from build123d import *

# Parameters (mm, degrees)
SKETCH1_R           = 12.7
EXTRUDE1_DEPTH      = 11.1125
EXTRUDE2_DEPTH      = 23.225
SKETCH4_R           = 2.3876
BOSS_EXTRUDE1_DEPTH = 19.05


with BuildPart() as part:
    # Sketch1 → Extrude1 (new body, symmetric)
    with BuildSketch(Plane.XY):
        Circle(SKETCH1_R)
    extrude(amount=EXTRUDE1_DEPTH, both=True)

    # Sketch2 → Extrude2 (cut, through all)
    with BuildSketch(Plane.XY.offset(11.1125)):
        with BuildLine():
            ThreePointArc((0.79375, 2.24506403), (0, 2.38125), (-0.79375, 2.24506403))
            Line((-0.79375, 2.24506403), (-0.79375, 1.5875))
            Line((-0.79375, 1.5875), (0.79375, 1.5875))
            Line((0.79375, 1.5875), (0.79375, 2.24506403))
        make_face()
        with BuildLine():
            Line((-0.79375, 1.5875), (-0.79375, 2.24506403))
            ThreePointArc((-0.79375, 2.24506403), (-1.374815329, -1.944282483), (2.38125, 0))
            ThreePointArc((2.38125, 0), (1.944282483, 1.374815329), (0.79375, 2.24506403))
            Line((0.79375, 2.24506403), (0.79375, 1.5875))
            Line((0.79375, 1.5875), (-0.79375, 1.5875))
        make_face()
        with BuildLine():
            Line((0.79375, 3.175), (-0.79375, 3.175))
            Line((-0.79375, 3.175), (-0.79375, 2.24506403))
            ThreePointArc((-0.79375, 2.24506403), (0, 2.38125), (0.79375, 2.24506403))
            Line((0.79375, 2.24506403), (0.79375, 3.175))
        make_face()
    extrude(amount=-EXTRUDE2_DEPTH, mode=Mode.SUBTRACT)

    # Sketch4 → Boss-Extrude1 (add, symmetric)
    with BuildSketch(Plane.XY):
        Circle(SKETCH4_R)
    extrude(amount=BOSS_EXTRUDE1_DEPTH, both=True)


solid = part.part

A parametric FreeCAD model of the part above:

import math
import FreeCAD as App
import Part
import Sketcher
Q = App.Units.Quantity

doc = App.newDocument("Part")
body = doc.addObject("PartDesign::Body", "Body")

# Sketch on XY plane
sketch1 = body.newObject("Sketcher::SketchObject", "Sketch")
sketch1.AttachmentSupport = (doc.getObject("XY_Plane"), [""])
sketch1.MapMode = "FlatFace"
sketch1.addGeometry(Part.Circle(App.Vector(0, 0, 0), App.Vector(0, 0, 1), 13), False)
sketch1.addConstraint([
    Sketcher.Constraint("Coincident", 0, 3, -1, 1),
    Sketcher.Constraint("Diameter", 0, Q("1 in")),
])
pad1 = body.newObject("PartDesign::Pad", "Pad")
pad1.Profile = sketch1
pad1.Length = Q("0.875 in")
pad1.Midplane = True

# Sketch on XY plane
sketch2 = body.newObject("Sketcher::SketchObject", "Sketch001")
sketch2.AttachmentSupport = (doc.getObject("XY_Plane"), [""])
sketch2.MapMode = "FlatFace"
sketch2.AttachmentOffset = App.Placement(App.Vector(0, 0, 0.4375 * 25.4), App.Rotation())
sketch2.addGeometry([
    Part.ArcOfCircle(Part.Circle(App.Vector(0, 0, 0), App.Vector(0, 0, 1), 2.4), math.radians(109), math.radians(360)),  # 0
    Part.ArcOfCircle(Part.Circle(App.Vector(0, 0, 0), App.Vector(0, 0, 1), 2.4), math.radians(0), math.radians(71)),  # 1
    Part.LineSegment(App.Vector(0.8, 2.2, 0), App.Vector(0.8, 3.2, 0)),  # 2
    Part.LineSegment(App.Vector(0.8, 3.2, 0), App.Vector(-0.8, 3.2, 0)),  # 3
    Part.LineSegment(App.Vector(-0.8, 3.2, 0), App.Vector(-0.8, 2.2, 0)),  # 4
], False)
sketch2.addConstraint([
    Sketcher.Constraint("Tangent", 0, 2, 1, 1),
    Sketcher.Constraint("Coincident", 1, 2, 2, 1),
    Sketcher.Constraint("Coincident", 2, 2, 3, 1),
    Sketcher.Constraint("Coincident", 3, 2, 4, 1),
    Sketcher.Constraint("Coincident", 4, 2, 0, 1),
    Sketcher.Constraint("Vertical", 2),
    Sketcher.Constraint("Horizontal", 3),
    Sketcher.Constraint("Vertical", 4),
    Sketcher.Constraint("Coincident", 0, 3, -1, 1),
    Sketcher.Constraint("Equal", 0, 1),
    Sketcher.Constraint("PointOnObject", 0, 2, -1),
    Sketcher.Constraint("Horizontal", 1, 2, 4, 2),
    Sketcher.Constraint("Radius", 0, Q("0.09375 in")),
    Sketcher.Constraint("DistanceX", 3, 2, 3, 1, Q("0.0625 in")),
    Sketcher.Constraint("DistanceY", -1, 1, 2, 2, Q("0.125 in")),
])
pocket1 = body.newObject("PartDesign::Pocket", "Pocket")
pocket1.Profile = sketch2
pocket1.Type = "ThroughAll"

# Sketch on XY plane
sketch3 = body.newObject("Sketcher::SketchObject", "Sketch002")
sketch3.AttachmentSupport = (doc.getObject("XY_Plane"), [""])
sketch3.MapMode = "FlatFace"
sketch3.addGeometry(Part.Circle(App.Vector(0, 0, 0), App.Vector(0, 0, 1), 2.4), False)
sketch3.addConstraint([
    Sketcher.Constraint("Coincident", 0, 3, -1, 1),
    Sketcher.Constraint("Diameter", 0, Q("0.188 in")),
])
pad2 = body.newObject("PartDesign::Pad", "Pad001")
pad2.Profile = sketch3
pad2.Length = Q("1.5 in")
pad2.Midplane = True

doc.recompute()
